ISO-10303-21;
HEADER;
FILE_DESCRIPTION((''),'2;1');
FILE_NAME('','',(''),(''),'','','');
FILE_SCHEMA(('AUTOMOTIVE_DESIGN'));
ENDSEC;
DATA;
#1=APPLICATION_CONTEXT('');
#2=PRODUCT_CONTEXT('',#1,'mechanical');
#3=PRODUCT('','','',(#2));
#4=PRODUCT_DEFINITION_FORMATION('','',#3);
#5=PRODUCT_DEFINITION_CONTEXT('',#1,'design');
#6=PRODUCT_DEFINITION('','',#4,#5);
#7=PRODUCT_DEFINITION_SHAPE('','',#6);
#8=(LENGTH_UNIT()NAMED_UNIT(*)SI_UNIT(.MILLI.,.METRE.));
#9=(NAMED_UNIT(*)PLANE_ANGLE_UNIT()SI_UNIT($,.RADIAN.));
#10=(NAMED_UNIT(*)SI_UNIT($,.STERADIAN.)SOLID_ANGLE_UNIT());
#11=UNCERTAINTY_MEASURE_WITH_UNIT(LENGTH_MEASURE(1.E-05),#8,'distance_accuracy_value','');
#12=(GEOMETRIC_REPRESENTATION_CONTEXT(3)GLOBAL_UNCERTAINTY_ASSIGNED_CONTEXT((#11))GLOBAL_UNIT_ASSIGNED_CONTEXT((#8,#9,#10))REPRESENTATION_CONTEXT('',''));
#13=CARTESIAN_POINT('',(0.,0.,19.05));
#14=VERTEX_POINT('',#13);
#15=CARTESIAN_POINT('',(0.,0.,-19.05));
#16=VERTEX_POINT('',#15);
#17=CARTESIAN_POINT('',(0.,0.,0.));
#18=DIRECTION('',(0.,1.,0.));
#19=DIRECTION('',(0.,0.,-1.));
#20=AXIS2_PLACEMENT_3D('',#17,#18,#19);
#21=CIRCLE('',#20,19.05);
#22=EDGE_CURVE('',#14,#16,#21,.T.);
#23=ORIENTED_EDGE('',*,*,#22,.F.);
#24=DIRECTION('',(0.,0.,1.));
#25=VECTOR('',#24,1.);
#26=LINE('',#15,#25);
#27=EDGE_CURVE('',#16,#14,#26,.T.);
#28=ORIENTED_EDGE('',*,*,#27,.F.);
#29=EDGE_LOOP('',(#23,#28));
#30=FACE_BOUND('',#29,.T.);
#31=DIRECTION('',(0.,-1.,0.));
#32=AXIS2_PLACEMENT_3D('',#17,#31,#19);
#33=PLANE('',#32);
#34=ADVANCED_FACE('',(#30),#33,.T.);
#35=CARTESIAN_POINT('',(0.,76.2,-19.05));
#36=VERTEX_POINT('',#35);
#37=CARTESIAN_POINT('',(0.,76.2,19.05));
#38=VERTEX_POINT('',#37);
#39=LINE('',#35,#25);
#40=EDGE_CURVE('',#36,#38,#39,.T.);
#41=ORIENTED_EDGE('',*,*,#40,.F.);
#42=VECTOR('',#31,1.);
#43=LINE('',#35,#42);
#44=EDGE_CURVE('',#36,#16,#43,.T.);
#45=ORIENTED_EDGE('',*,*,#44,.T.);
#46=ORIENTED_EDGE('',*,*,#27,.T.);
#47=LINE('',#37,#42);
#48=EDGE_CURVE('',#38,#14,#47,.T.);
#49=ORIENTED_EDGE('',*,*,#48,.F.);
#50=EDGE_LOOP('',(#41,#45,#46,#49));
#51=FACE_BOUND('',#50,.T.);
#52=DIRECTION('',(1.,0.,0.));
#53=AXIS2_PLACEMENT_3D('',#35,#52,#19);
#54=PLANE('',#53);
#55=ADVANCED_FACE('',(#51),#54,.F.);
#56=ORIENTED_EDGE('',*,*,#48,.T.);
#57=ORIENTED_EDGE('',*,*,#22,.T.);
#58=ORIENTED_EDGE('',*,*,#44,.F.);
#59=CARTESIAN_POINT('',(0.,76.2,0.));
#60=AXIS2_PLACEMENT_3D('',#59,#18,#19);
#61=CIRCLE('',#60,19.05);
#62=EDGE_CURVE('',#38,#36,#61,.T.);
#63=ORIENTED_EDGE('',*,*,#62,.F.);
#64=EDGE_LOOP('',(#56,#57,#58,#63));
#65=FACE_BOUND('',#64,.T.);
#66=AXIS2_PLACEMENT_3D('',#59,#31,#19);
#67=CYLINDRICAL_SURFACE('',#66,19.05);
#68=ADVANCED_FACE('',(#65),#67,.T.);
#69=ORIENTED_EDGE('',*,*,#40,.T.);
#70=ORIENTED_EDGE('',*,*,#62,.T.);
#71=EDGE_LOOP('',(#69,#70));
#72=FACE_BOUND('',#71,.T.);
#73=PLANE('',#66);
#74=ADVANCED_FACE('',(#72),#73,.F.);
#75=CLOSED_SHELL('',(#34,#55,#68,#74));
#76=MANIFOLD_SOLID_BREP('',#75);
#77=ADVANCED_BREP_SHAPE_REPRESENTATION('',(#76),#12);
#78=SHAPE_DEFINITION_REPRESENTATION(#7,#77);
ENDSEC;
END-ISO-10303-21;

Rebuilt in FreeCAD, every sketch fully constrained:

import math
import FreeCAD as App
import Part
import Sketcher
Q = App.Units.Quantity

doc = App.newDocument("Part")
body = doc.addObject("PartDesign::Body", "Body")

sketch1 = body.newObject("Sketcher::SketchObject", "Sketch")
sketch1.AttachmentSupport = (doc.getObject("XZ_Plane"), [""])
sketch1.MapMode = "FlatFace"
sketch1.addGeometry(Part.LineSegment(App.Vector(0, -19, 0), App.Vector(0, 19, 0)), False)
sketch1.addGeometry(Part.ArcOfCircle(Part.Circle(App.Vector(0, 0, 0), App.Vector(0, 0, 1), 19), math.radians(-90), math.radians(90)), False)
sketch1.addConstraint(Sketcher.Constraint("Coincident", 0, 1, 1, 1))
sketch1.addConstraint(Sketcher.Constraint("Coincident", 1, 2, 0, 2))
sketch1.addConstraint(Sketcher.Constraint("Vertical", 0))
sketch1.addConstraint(Sketcher.Constraint("Coincident", 1, 3, -1, 1))
sketch1.addConstraint(Sketcher.Constraint("PointOnObject", 0, 1, -2))
sketch1.addConstraint(Sketcher.Constraint("Radius", 1, Q("0.75 in")))
pad1 = body.newObject("PartDesign::Pad", "Pad")
pad1.Profile = sketch1
pad1.Length = Q("3 in")
pad1.Reversed = True

doc.recompute()
